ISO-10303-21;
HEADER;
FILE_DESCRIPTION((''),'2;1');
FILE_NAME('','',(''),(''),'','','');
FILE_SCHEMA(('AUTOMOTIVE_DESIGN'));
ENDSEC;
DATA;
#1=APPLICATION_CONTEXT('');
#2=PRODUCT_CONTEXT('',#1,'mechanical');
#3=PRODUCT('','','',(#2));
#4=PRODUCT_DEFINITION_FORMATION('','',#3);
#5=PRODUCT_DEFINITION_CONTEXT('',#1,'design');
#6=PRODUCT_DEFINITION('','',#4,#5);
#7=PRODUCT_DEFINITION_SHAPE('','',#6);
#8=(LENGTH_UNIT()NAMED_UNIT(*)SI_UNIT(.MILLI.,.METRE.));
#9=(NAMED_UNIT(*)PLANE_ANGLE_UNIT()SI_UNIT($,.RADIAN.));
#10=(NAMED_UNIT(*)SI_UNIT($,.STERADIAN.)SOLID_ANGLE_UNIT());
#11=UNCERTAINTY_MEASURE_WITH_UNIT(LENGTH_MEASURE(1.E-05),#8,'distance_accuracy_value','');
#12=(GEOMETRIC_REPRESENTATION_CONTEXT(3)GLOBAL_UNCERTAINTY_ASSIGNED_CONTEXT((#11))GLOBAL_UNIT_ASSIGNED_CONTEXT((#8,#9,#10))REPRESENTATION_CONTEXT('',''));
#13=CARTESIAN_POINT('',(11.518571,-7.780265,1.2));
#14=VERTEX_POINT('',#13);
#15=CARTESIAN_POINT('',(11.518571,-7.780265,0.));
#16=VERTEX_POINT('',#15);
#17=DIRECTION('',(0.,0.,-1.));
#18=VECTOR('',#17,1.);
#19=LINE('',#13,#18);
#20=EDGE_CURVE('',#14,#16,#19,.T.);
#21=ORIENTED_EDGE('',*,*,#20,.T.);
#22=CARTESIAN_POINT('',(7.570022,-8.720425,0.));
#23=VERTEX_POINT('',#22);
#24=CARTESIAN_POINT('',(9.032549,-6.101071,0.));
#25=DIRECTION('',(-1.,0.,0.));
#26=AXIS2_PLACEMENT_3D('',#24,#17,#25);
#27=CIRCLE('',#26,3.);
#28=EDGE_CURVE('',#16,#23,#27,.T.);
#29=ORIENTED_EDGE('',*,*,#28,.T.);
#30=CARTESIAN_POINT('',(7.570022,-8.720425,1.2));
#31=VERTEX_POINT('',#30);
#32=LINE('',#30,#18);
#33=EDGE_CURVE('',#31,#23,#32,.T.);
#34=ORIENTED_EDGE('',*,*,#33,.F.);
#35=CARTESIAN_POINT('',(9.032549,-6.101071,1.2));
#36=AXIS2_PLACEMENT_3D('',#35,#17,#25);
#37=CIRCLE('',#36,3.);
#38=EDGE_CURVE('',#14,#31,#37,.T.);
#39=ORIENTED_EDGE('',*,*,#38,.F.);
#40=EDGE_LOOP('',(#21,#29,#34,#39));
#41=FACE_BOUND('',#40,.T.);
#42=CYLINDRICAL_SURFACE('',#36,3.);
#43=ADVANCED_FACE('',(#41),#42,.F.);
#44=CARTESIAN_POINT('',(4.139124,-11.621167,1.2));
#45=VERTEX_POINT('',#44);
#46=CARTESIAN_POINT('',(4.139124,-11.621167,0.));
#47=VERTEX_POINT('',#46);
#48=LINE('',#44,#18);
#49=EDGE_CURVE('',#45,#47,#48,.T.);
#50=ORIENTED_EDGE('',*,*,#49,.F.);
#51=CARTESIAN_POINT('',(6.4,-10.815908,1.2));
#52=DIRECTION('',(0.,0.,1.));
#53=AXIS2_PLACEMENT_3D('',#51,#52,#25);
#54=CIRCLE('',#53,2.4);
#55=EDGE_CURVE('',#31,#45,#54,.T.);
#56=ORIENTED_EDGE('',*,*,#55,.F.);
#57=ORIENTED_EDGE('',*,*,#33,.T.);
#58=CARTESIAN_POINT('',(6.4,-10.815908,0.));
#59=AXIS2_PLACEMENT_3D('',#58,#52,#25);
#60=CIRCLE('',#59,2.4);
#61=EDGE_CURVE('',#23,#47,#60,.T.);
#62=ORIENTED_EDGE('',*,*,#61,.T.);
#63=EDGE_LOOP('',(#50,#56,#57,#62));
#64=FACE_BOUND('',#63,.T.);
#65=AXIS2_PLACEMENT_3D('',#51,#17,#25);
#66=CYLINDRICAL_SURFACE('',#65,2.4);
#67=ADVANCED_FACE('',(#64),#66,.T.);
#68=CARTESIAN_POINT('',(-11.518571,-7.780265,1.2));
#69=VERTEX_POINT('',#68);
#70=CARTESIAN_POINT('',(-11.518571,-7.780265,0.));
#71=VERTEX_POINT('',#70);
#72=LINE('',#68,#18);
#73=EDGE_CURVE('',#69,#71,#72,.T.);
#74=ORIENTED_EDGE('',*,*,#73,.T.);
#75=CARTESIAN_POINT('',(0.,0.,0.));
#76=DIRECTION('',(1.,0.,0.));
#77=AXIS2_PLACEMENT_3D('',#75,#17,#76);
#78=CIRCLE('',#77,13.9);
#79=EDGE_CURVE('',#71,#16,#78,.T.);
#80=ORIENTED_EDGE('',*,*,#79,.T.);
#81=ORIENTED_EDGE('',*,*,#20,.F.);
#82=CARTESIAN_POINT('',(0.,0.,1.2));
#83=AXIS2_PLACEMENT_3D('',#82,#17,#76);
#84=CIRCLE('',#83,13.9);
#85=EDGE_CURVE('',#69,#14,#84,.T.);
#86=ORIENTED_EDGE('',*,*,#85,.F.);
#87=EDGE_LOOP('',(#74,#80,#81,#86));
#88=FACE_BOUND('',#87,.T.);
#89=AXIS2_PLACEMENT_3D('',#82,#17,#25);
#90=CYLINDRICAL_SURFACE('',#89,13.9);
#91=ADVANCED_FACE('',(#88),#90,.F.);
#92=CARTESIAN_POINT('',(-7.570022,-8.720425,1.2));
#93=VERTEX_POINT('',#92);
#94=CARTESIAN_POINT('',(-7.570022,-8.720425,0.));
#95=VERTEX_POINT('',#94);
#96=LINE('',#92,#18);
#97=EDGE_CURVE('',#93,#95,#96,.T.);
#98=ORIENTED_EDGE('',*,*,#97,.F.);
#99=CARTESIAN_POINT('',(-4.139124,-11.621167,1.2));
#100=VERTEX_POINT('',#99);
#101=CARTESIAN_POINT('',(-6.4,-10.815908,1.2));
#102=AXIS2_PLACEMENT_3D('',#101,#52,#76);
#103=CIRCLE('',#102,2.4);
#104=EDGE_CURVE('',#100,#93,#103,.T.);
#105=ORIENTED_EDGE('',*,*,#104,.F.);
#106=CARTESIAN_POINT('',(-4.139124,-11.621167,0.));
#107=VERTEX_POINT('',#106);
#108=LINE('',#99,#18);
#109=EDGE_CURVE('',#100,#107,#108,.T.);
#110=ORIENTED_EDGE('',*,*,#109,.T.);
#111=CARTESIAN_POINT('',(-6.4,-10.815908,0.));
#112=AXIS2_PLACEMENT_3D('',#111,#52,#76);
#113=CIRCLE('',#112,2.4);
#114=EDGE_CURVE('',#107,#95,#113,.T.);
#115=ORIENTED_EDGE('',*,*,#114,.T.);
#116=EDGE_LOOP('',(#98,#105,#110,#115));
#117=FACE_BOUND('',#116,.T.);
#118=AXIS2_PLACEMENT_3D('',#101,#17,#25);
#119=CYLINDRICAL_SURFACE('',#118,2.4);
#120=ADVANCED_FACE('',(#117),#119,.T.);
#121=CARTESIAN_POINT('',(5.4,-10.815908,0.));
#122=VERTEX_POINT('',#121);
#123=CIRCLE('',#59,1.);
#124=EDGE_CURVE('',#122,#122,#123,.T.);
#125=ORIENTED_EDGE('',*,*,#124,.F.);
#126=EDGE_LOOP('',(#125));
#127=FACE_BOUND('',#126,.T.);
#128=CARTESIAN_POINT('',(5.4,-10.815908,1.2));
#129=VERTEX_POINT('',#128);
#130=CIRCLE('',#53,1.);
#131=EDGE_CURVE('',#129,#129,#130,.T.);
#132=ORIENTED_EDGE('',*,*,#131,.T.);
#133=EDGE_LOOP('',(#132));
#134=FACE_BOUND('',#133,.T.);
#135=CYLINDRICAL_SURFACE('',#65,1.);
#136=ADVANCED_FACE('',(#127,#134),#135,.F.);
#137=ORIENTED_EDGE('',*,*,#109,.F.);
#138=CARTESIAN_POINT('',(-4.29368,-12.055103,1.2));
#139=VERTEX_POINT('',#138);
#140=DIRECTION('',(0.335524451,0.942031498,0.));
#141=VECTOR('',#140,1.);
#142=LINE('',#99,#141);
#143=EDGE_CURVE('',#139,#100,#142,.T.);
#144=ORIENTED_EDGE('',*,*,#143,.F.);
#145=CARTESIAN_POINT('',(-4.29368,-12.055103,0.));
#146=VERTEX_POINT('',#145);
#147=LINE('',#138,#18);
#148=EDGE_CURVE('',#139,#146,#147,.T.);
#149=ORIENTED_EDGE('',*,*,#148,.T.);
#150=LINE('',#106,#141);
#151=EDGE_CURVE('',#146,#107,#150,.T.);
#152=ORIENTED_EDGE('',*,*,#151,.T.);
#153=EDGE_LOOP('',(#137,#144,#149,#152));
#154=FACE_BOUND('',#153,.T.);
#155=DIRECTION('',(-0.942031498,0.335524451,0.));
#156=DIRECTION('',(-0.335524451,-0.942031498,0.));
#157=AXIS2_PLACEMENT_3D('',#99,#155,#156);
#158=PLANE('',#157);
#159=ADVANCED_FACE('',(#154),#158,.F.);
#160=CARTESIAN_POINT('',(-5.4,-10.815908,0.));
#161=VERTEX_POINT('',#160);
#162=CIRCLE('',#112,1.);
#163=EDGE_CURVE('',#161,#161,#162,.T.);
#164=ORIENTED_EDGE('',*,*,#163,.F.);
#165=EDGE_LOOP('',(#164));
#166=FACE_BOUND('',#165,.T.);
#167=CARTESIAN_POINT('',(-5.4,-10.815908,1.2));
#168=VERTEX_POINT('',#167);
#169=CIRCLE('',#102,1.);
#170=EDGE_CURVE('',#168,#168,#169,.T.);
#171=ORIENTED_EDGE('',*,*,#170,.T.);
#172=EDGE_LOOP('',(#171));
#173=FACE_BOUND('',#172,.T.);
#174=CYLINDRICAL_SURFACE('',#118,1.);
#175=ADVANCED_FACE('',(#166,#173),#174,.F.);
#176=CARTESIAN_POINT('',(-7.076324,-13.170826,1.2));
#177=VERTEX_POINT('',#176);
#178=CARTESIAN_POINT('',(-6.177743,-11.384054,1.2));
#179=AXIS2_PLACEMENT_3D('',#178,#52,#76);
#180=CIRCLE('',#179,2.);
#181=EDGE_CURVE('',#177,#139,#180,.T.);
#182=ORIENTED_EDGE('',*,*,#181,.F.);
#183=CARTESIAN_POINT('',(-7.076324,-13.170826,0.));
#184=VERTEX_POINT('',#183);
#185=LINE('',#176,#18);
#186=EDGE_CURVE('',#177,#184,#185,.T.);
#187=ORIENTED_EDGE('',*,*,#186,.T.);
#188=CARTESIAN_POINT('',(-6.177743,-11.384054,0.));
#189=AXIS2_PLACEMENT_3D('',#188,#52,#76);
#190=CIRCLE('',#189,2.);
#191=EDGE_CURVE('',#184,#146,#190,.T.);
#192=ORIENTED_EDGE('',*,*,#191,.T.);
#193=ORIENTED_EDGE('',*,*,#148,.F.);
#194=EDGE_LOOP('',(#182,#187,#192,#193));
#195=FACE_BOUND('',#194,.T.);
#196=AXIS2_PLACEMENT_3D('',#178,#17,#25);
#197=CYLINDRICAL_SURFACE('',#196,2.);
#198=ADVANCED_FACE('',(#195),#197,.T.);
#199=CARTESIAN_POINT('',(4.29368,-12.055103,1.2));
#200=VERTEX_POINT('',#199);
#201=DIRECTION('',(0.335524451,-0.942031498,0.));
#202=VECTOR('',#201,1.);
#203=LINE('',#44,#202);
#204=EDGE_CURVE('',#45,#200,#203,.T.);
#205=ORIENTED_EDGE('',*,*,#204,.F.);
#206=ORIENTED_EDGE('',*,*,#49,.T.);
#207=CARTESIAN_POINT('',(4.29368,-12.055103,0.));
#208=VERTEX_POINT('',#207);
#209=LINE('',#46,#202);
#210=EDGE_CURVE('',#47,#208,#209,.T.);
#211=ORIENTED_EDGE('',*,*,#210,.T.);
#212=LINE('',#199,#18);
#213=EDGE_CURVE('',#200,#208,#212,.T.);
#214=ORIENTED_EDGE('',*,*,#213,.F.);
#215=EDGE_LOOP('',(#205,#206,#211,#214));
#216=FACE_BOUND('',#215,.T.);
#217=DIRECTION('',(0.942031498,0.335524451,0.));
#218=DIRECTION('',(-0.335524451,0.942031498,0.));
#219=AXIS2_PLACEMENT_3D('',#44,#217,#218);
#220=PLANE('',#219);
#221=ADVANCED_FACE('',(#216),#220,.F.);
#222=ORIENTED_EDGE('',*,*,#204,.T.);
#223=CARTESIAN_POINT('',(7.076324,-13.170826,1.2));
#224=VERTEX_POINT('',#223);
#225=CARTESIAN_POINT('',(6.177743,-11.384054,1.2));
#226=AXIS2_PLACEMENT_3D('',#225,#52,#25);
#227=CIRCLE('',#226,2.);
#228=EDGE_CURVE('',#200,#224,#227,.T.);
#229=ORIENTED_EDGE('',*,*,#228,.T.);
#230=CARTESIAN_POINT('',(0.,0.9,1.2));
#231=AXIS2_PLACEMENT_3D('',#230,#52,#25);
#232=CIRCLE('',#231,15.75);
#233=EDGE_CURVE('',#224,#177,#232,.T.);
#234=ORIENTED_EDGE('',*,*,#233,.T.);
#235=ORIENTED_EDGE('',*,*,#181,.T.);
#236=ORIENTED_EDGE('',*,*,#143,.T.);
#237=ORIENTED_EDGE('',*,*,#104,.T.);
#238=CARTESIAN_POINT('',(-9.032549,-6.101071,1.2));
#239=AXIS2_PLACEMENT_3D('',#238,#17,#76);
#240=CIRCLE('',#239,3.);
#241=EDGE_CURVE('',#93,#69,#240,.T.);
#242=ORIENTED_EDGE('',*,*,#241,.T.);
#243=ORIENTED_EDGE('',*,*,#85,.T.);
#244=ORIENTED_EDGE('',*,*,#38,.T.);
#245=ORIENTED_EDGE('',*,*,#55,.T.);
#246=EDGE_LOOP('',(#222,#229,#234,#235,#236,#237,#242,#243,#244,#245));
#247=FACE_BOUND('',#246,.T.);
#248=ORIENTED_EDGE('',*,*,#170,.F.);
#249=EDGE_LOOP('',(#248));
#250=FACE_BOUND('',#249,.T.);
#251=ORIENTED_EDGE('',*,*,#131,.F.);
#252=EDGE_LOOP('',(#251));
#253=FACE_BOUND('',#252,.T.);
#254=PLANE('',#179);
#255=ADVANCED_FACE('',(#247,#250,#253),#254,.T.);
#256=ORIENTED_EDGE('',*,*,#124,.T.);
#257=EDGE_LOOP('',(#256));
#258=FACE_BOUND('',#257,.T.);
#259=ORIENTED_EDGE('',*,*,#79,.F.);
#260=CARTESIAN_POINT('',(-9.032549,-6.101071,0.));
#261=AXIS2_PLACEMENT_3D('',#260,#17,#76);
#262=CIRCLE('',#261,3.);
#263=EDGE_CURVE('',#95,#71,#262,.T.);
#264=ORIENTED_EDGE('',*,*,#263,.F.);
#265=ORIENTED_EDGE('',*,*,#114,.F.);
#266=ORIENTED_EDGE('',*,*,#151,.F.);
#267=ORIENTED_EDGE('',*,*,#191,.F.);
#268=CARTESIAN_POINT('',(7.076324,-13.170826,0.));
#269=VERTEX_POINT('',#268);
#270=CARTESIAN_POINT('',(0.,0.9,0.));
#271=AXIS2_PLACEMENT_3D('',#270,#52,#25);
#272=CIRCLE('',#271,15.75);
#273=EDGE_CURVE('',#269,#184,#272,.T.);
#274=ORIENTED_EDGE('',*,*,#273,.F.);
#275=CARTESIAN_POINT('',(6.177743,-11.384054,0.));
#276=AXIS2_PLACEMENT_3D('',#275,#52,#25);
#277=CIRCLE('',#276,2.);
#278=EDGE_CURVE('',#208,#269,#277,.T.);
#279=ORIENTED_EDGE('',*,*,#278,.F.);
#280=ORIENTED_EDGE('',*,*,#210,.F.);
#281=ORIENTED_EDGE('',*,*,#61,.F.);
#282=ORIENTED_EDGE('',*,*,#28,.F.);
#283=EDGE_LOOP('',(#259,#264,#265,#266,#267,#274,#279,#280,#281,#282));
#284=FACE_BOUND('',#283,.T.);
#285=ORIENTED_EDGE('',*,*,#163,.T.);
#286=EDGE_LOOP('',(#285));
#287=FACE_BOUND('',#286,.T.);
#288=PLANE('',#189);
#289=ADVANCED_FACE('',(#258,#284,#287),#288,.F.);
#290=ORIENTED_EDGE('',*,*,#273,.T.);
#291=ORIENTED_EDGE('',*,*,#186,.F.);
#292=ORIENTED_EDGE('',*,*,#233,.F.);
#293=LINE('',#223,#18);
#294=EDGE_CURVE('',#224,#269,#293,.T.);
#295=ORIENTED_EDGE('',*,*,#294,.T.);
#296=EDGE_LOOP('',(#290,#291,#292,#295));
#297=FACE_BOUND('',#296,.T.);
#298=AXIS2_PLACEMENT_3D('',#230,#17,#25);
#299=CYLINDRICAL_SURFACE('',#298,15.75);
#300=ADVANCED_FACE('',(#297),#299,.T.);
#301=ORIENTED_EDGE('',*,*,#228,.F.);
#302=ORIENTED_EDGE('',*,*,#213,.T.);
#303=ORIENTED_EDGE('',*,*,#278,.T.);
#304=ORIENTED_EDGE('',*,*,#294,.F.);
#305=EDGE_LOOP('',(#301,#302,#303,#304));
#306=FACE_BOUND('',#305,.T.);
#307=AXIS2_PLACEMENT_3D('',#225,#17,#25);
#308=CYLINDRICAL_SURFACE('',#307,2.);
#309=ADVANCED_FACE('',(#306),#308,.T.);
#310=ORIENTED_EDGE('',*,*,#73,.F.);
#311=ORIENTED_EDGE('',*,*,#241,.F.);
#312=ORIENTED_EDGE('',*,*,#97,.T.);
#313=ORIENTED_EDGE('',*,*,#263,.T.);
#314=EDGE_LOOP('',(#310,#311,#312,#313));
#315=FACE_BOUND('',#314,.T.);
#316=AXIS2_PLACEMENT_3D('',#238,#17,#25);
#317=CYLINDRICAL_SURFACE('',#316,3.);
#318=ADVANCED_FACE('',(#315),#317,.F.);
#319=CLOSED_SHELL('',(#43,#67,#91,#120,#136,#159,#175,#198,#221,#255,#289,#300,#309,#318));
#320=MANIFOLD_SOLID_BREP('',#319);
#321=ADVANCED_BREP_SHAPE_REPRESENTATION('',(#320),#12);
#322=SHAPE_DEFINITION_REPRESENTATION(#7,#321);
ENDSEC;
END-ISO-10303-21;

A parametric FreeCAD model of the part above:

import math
import FreeCAD as App
import Part
import Sketcher

V = App.Vector
Q = App.Units.Quantity

doc = App.newDocument("Part")
params = doc.addObject("Spreadsheet::Sheet", "Params")
for row, (alias, value) in enumerate([
    ("sketch1_diameter", "2 mm"),
    ("sketch1_radius", "2 mm"),
    ("sketch1_radius2", "3 mm"),
    ("sketch1_radius3", "2.4 mm"),
    ("sketch1_radius4", "13.9 mm"),
    ("pad1_length", "1.2 mm"),
], start=1):
    params.set(f"A{row}", alias)
    params.set(f"B{row}", "=" + value)
    params.setAlias(f"B{row}", alias)

body = doc.addObject("PartDesign::Body", "Body")

# Sketch on XY plane
sketch1 = body.newObject("Sketcher::SketchObject", "Sketch")
sketch1.AttachmentSupport = (doc.getObject("XY_Plane"), [""])
sketch1.MapMode = "FlatFace"
sketch1.addGeometry([
    Part.LineSegment(V(4.14, -11.62, 0), V(4.29, -12.06, 0)),  # 0
    Part.ArcOfCircle(Part.Circle(V(6.18, -11.38, 0), V(0, 0, 1), 2), math.radians(-160), math.radians(-63)),  # 1
    Part.ArcOfCircle(Part.Circle(V(0, 0.9, 0), V(0, 0, 1), 15.75), math.radians(-63), math.radians(243)),  # 2
    Part.ArcOfCircle(Part.Circle(V(-6.18, -11.38, 0), V(0, 0, 1), 2), math.radians(-117), math.radians(-20)),  # 3
    Part.LineSegment(V(-4.29, -12.06, 0), V(-4.14, -11.62, 0)),  # 4
    Part.ArcOfCircle(Part.Circle(V(-6.4, -10.82, 0), V(0, 0, 1), 2.4), math.radians(-20), math.radians(119)),  # 5
    Part.ArcOfCircle(Part.Circle(V(-9.03, -6.1, 0), V(0, 0, 1), 3), math.radians(-146), math.radians(-61)),  # 6
    Part.ArcOfCircle(Part.Circle(V(0, 0, 0), V(0, 0, 1), 13.9), math.radians(-34), math.radians(214)),  # 7
    Part.ArcOfCircle(Part.Circle(V(9.03, -6.1, 0), V(0, 0, 1), 3), math.radians(-119), math.radians(-34)),  # 8
    Part.ArcOfCircle(Part.Circle(V(6.4, -10.82, 0), V(0, 0, 1), 2.4), math.radians(61), math.radians(200)),  # 9
    Part.Circle(V(-6.4, -10.82, 0), V(0, 0, 1), 1),  # 10
    Part.Circle(V(6.4, -10.82, 0), V(0, 0, 1), 1),  # 11
], False)
sketch1.addConstraint([
    Sketcher.Constraint("Tangent", 0, 2, 1, 1),
    Sketcher.Constraint("Tangent", 1, 2, 2, 1),
    Sketcher.Constraint("Tangent", 2, 2, 3, 1),
    Sketcher.Constraint("Tangent", 3, 2, 4, 1),
    Sketcher.Constraint("Tangent", 4, 2, 5, 1),
    Sketcher.Constraint("Tangent", 5, 2, 6, 2),
    Sketcher.Constraint("Tangent", 6, 1, 7, 2),
    Sketcher.Constraint("Tangent", 7, 1, 8, 2),
    Sketcher.Constraint("Tangent", 8, 1, 9, 1),
    Sketcher.Constraint("Tangent", 9, 2, 0, 1),
    Sketcher.Constraint("Coincident", 7, 3, -1, 1),
    Sketcher.Constraint("Coincident", 10, 3, 5, 3),
    Sketcher.Constraint("Coincident", 11, 3, 9, 3),
    Sketcher.Constraint("Equal", 1, 3),
    Sketcher.Constraint("Equal", 6, 8),
    Sketcher.Constraint("Equal", 5, 9),
    Sketcher.Constraint("Equal", 10, 11),
    Sketcher.Constraint("Symmetric", 1, 3, 3, 3, -2),
    Sketcher.Constraint("Symmetric", 5, 3, 9, 3, -2),
    Sketcher.Constraint("Diameter", 10, Q("2 mm")),
    Sketcher.Constraint("Radius", 1, Q("2 mm")),
    Sketcher.Constraint("Radius", 6, Q("3 mm")),
    Sketcher.Constraint("Radius", 5, Q("2.4 mm")),
    Sketcher.Constraint("Radius", 7, Q("13.9 mm")),
    Sketcher.Constraint("Radius", 2, Q("15.75 mm")),
    Sketcher.Constraint("DistanceY", -1, 1, 2, 3, Q("0.9 mm")),
    Sketcher.Constraint("DistanceX", 5, 3, -1, 1, Q("6.4 mm")),
    Sketcher.Constraint("DistanceX", 2, 2, 4, 2, Q("2.937199 mm")),
    Sketcher.Constraint("DistanceY", 2, 2, 5, 2, Q("4.450401 mm")),
])
sketch1.setExpression("Constraints[19]", "Params.sketch1_diameter")
sketch1.setExpression("Constraints[20]", "Params.sketch1_radius")
sketch1.setExpression("Constraints[21]", "Params.sketch1_radius2")
sketch1.setExpression("Constraints[22]", "Params.sketch1_radius3")
sketch1.setExpression("Constraints[23]", "Params.sketch1_radius4")
pad1 = body.newObject("PartDesign::Pad", "Pad")
pad1.Profile = sketch1
pad1.setExpression("Length", "Params.pad1_length")

doc.recompute()
